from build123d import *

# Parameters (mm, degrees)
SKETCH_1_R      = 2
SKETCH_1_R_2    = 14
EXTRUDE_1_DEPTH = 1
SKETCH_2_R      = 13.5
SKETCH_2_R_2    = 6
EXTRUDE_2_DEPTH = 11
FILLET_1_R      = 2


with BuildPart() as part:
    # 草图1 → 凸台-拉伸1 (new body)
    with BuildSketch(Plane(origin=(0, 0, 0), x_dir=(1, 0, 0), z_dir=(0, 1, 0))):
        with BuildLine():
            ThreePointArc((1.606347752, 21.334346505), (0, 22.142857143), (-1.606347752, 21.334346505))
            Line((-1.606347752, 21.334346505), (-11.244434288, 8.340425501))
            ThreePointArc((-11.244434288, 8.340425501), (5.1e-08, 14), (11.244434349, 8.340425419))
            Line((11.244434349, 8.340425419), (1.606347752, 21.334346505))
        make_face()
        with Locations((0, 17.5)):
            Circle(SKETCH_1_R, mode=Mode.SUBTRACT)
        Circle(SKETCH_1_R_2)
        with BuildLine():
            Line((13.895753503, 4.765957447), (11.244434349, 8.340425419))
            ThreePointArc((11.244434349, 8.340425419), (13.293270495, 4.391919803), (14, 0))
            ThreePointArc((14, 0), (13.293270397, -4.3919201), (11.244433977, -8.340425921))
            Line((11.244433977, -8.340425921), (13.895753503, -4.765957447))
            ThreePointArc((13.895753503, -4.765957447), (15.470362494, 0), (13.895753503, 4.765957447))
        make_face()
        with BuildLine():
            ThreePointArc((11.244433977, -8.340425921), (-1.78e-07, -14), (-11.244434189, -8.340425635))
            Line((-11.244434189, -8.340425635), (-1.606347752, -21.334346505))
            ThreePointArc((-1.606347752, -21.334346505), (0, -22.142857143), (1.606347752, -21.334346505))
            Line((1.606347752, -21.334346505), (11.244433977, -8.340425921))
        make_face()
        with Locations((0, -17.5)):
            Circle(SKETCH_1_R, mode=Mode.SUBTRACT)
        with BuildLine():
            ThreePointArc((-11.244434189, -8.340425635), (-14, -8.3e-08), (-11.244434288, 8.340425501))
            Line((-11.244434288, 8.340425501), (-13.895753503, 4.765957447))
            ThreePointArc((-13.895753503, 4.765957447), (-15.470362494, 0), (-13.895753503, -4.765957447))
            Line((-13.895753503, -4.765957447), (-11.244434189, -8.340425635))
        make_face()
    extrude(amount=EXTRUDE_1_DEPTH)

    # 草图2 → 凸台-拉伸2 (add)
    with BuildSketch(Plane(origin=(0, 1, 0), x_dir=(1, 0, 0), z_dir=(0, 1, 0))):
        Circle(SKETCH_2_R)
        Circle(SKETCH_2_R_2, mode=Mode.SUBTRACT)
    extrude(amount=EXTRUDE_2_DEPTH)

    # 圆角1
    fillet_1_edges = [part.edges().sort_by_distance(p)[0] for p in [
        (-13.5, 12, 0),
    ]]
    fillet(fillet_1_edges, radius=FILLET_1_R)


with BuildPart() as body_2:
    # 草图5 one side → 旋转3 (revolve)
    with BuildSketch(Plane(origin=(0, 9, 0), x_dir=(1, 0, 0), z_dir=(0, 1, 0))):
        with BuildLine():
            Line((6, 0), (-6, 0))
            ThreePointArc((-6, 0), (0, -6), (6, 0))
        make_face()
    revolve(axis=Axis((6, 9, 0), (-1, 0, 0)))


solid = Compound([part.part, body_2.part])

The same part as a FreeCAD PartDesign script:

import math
import FreeCAD as App
import Part
import Sketcher


def edges_at(feature, points):
    """Names of the edges that pass closest to the given points."""
    edges = feature.Shape.Edges
    near = lambda p: min(range(len(edges)), key=lambda i: edges[i].distToShape(Part.Vertex(*p))[0])
    return sorted({f"Edge{near(p) + 1}" for p in points})

doc = App.newDocument("Part")
body = doc.addObject("PartDesign::Body", "Body")

sketch1 = doc.addObject("Sketcher::SketchObject", "Sketch")
body.addObject(sketch1)
sketch1.AttachmentSupport = (doc.XZ_Plane, [""])
sketch1.MapMode = "FlatFace"
sketch1.addGeometry([
    Part.ArcOfCircle(Part.Circle(App.Vector(0, -20.1, 0), App.Vector(0, 0, 1), 2), math.radians(-143), math.radians(-37)),
    Part.LineSegment(App.Vector(-1.6, -21.3, 0), App.Vector(-11.2, -8.3, 0)),
    Part.LineSegment(App.Vector(-11.2, -8.3, 0), App.Vector(-13.9, -4.8, 0)),
    Part.ArcOfCircle(Part.Circle(App.Vector(-7.5, 0, 0), App.Vector(0, 0, 1), 8), math.radians(143), math.radians(217)),
    Part.LineSegment(App.Vector(-13.9, 4.8, 0), App.Vector(-11.2, 8.3, 0)),
    Part.LineSegment(App.Vector(-11.2, 8.3, 0), App.Vector(-1.6, 21.3, 0)),
    Part.ArcOfCircle(Part.Circle(App.Vector(0, 20.1, 0), App.Vector(0, 0, 1), 2), math.radians(37), math.radians(143)),
    Part.LineSegment(App.Vector(1.6, 21.3, 0), App.Vector(11.2, 8.3, 0)),
    Part.LineSegment(App.Vector(11.2, 8.3, 0), App.Vector(13.9, 4.8, 0)),
    Part.ArcOfCircle(Part.Circle(App.Vector(7.5, 0, 0), App.Vector(0, 0, 1), 8), math.radians(-37), math.radians(37)),
    Part.LineSegment(App.Vector(13.9, -4.8, 0), App.Vector(11.2, -8.3, 0)),
    Part.LineSegment(App.Vector(11.2, -8.3, 0), App.Vector(1.6, -21.3, 0)),
    Part.Circle(App.Vector(0, 17.5, 0), App.Vector(0, 0, 1), 2),
    Part.Circle(App.Vector(0, -17.5, 0), App.Vector(0, 0, 1), 2),
], False)
sketch1.addConstraint([
    Sketcher.Constraint("Tangent", 0, 1, 1, 1),
    Sketcher.Constraint("Coincident", 1, 2, 2, 1),
    Sketcher.Constraint("Tangent", 2, 2, 3, 2),
    Sketcher.Constraint("Tangent", 3, 1, 4, 1),
    Sketcher.Constraint("Coincident", 4, 2, 5, 1),
    Sketcher.Constraint("Tangent", 5, 2, 6, 2),
    Sketcher.Constraint("Tangent", 6, 1, 7, 1),
    Sketcher.Constraint("Coincident", 7, 2, 8, 1),
    Sketcher.Constraint("Tangent", 8, 2, 9, 2),
    Sketcher.Constraint("Tangent", 9, 1, 10, 1),
    Sketcher.Constraint("Coincident", 10, 2, 11, 1),
    Sketcher.Constraint("Tangent", 11, 2, 0, 2),
    Sketcher.Constraint("Equal", 0, 6),
    Sketcher.Constraint("Equal", 3, 9),
    Sketcher.Constraint("Equal", 6, 12),
    Sketcher.Constraint("Equal", 12, 13),
    Sketcher.Constraint("Symmetric", 0, 3, 6, 3, -1, 1),
    Sketcher.Constraint("Symmetric", 3, 3, 9, 3, -1, 1),
    Sketcher.Constraint("Symmetric", 12, 3, 13, 3, -1, 1),
    Sketcher.Constraint("Symmetric", 1, 2, 7, 2, -1, 1),
    Sketcher.Constraint("Symmetric", 4, 2, 10, 2, -1, 1),
    Sketcher.Constraint("Symmetric", 5, 2, 6, 1, -2),
    Sketcher.Constraint("PointOnObject", 3, 3, -1),
    Sketcher.Constraint("PointOnObject", 12, 3, -2),
    Sketcher.Constraint("Parallel", 1, 2),
    Sketcher.Constraint("Horizontal", 4, 2, 7, 2),
    Sketcher.Constraint("Diameter", 12, 4.0),
    Sketcher.Constraint("Radius", 3, 8.0),
    Sketcher.Constraint("DistanceY", 13, 3, 12, 3, 35.0),
    Sketcher.Constraint("DistanceY", 0, 3, 2, 2, 15.3769),
    Sketcher.Constraint("Distance", 2, 4.450429),
    Sketcher.Constraint("DistanceY", 0, 1, 0, 3, 1.191489),
])
pad1 = doc.addObject("PartDesign::Pad", "Pad")
body.addObject(pad1)
pad1.Profile = sketch1
pad1.Length = 1
pad1.Reversed = True

sketch2 = doc.addObject("Sketcher::SketchObject", "Sketch001")
body.addObject(sketch2)
sketch2.AttachmentSupport = (doc.XZ_Plane, [""])
sketch2.MapMode = "FlatFace"
sketch2.AttachmentOffset = App.Placement(App.Vector(0, 0, -1), App.Rotation())
sketch2.addGeometry([
    Part.Circle(App.Vector(0, 0, 0), App.Vector(0, 0, 1), 14),
    Part.Circle(App.Vector(0, 0, 0), App.Vector(0, 0, 1), 6),
], False)
sketch2.addConstraint([
    Sketcher.Constraint("Coincident", 0, 3, -1, 1),
    Sketcher.Constraint("Coincident", 1, 3, -1, 1),
    Sketcher.Constraint("Diameter", 0, 27.0),
    Sketcher.Constraint("Diameter", 1, 12.0),
])
pad2 = doc.addObject("PartDesign::Pad", "Pad001")
body.addObject(pad2)
pad2.Profile = sketch2
pad2.Length = 11
pad2.Reversed = True
doc.recompute()

fillet = doc.addObject("PartDesign::Fillet", "Fillet")
body.addObject(fillet)
fillet.Base = (pad2, edges_at(pad2, [(-13.5, 12, 0)]))
fillet.Radius = 2
body2 = doc.addObject("PartDesign::Body", "Body001")

sketch3 = doc.addObject("Sketcher::SketchObject", "Sketch002")
body2.addObject(sketch3)
sketch3.AttachmentSupport = (doc.getObject("XZ_Plane001"), [""])
sketch3.MapMode = "FlatFace"
sketch3.AttachmentOffset = App.Placement(App.Vector(0, 0, -9), App.Rotation())
sketch3.addGeometry([
    Part.LineSegment(App.Vector(6, 0, 0), App.Vector(-6, 0, 0)),
    Part.ArcOfCircle(Part.Circle(App.Vector(0, 0, 0), App.Vector(0, 0, 1), 6), math.radians(0), math.radians(180)),
], False)
sketch3.addConstraint([
    Sketcher.Constraint("Coincident", 0, 1, 1, 1),
    Sketcher.Constraint("Coincident", 1, 2, 0, 2),
    Sketcher.Constraint("Horizontal", 0),
    Sketcher.Constraint("Coincident", 1, 3, -1, 1),
    Sketcher.Constraint("PointOnObject", 0, 1, -1),
    Sketcher.Constraint("Radius", 1, 6.0),
])
revolution = doc.addObject("PartDesign::Revolution", "Revolution")
body2.addObject(revolution)
revolution.Profile = sketch3
revolution.ReferenceAxis = (sketch3, ["H_Axis"])
revolution.Angle = 360

doc.recompute()
